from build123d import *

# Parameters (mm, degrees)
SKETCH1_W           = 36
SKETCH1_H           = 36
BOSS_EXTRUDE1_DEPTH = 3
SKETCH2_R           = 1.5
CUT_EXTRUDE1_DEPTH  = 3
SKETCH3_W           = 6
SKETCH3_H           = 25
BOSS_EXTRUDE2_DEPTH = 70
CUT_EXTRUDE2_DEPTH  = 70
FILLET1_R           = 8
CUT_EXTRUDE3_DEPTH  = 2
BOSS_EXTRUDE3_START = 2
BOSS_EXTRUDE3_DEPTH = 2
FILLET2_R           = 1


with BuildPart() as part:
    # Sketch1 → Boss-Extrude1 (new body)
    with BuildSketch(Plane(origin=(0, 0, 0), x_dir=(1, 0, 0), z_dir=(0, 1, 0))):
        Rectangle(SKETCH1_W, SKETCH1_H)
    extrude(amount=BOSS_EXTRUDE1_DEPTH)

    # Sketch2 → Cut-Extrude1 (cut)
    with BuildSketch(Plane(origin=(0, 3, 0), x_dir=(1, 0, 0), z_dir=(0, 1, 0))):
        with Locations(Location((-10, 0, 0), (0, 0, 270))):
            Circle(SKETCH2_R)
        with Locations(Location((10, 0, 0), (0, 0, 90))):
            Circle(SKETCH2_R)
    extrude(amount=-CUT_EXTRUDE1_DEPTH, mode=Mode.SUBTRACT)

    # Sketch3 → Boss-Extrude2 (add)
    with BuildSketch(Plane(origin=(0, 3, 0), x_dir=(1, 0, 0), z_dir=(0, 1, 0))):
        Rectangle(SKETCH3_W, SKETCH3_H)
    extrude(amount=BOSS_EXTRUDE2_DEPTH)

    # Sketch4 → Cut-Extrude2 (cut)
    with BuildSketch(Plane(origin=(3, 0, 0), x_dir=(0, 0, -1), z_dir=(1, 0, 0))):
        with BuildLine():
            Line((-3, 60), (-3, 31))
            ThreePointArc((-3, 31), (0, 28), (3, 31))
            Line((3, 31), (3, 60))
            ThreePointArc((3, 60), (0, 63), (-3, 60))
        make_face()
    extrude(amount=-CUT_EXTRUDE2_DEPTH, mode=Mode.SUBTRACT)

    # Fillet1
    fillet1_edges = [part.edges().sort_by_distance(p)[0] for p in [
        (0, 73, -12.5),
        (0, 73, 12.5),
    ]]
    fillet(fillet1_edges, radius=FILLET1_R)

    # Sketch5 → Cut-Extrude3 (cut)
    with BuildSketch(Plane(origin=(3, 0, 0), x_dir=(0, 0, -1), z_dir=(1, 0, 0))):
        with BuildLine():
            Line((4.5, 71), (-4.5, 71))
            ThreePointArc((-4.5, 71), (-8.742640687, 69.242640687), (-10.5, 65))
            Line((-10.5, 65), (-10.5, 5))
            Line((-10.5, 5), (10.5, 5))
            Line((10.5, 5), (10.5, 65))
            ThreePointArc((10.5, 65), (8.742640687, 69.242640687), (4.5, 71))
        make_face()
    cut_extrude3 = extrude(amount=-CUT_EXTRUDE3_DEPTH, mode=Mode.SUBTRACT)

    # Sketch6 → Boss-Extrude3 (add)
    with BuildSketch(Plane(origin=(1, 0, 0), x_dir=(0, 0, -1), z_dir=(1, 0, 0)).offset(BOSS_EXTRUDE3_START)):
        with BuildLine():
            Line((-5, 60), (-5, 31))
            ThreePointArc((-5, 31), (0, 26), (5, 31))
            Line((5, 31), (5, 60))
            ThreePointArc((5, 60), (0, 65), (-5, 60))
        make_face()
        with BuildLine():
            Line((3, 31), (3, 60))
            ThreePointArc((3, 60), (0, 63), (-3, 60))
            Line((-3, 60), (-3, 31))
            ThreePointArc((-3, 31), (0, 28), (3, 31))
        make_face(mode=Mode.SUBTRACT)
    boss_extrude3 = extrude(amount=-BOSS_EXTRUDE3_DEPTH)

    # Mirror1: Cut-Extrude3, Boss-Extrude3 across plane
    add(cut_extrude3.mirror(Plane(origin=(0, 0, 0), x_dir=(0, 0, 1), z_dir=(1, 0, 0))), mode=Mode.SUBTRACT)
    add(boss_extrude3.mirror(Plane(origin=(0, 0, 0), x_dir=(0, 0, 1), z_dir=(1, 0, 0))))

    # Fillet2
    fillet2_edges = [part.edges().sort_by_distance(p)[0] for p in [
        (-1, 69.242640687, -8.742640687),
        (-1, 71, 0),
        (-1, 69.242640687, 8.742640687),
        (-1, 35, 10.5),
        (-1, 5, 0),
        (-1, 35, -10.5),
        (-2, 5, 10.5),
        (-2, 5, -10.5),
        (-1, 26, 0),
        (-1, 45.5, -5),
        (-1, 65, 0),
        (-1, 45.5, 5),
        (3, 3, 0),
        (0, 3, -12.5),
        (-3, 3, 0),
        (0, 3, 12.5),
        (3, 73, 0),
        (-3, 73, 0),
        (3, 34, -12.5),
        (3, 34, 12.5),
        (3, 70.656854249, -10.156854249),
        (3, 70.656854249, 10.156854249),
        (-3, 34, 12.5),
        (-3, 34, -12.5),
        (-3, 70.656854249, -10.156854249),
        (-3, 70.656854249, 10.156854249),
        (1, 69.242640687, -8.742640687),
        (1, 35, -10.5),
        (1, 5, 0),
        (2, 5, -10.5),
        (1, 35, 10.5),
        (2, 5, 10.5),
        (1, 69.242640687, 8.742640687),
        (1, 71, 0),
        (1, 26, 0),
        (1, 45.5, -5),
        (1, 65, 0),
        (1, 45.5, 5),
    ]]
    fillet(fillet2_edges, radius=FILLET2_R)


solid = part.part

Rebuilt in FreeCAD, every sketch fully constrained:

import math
import FreeCAD as App
import Part
import Sketcher
from FreeCAD import Vector


def edges_at(feature, points):
    """Names of the edges that pass closest to the given points."""
    edges = feature.Shape.Edges
    near = lambda p: min(range(len(edges)), key=lambda i: edges[i].distToShape(Part.Vertex(*p))[0])
    return sorted({f"Edge{near(p) + 1}" for p in points})

doc = App.newDocument("Part")
params = doc.addObject("Spreadsheet::Sheet", "Params")
for row, (alias, value) in enumerate([
    ("sketch1_width", "36 mm"),
    ("pad1_length", "3 mm"),
    ("sketch2_diameter", "3 mm"),
    ("pocket1_length", "3 mm"),
    ("sketch3_width", "6 mm"),
    ("sketch3_height", "25 mm"),
    ("pad2_length", "70 mm"),
    ("sketch4_radius", "3 mm"),
    ("sketch4_width", "29 mm"),
    ("pocket2_length", "70 mm"),
    ("fillet_radius", "8 mm"),
    ("sketch5_radius", "6 mm"),
    ("sketch5_width", "60 mm"),
    ("sketch5_height", "9 mm"),
    ("pocket3_length", "2 mm"),
    ("sketch6_radius", "5 mm"),
    ("sketch6_radius2", "3 mm"),
    ("sketch6_width", "29 mm"),
    ("pad3_length", "2 mm"),
    ("fillet2_radius", "1 mm"),
], start=1):
    params.set(f"A{row}", alias)
    params.set(f"B{row}", "=" + value)
    params.setAlias(f"B{row}", alias)

body = doc.addObject("PartDesign::Body", "Body")

# Sketch on XZ plane
sketch1 = doc.addObject("Sketcher::SketchObject", "Sketch")
body.addObject(sketch1)
sketch1.AttachmentSupport = (doc.XZ_Plane, [""])
sketch1.MapMode = "FlatFace"
sketch1.addGeometry([
    Part.LineSegment(Vector(-18, -18, 0), Vector(-18, 18, 0)),
    Part.LineSegment(Vector(-18, 18, 0), Vector(18, 18, 0)),
    Part.LineSegment(Vector(18, 18, 0), Vector(18, -18, 0)),
    Part.LineSegment(Vector(18, -18, 0), Vector(-18, -18, 0)),
], False)
sketch1.addConstraint([
    Sketcher.Constraint("Coincident", 0, 2, 1, 1),
    Sketcher.Constraint("Coincident", 1, 2, 2, 1),
    Sketcher.Constraint("Coincident", 2, 2, 3, 1),
    Sketcher.Constraint("Coincident", 3, 2, 0, 1),
    Sketcher.Constraint("Vertical", 0),
    Sketcher.Constraint("Horizontal", 1),
    Sketcher.Constraint("Vertical", 2),
    Sketcher.Constraint("Horizontal", 3),
    Sketcher.Constraint("Symmetric", 0, 2, 2, 2, -1, 1),
    Sketcher.Constraint("Equal", 3, 0),
    Sketcher.Constraint("DistanceX", 1, 1, 1, 2, 36.0),
])
sketch1.setExpression("Constraints[10]", "Params.sketch1_width")
pad1 = doc.addObject("PartDesign::Pad", "Pad")
body.addObject(pad1)
pad1.Profile = sketch1
pad1.setExpression("Length", "Params.pad1_length")
pad1.Reversed = True

# Sketch on XZ plane
sketch2 = doc.addObject("Sketcher::SketchObject", "Sketch001")
body.addObject(sketch2)
sketch2.AttachmentSupport = (doc.XZ_Plane, [""])
sketch2.MapMode = "FlatFace"
sketch2.AttachmentOffset = App.Placement(Vector(0, 0, -3), App.Rotation())
sketch2.addGeometry([
    Part.Circle(Vector(-10, 0, 0), Vector(0, 0, 1), 1.5),
    Part.Circle(Vector(10, 0, 0), Vector(0, 0, 1), 1.5),
], False)
sketch2.addConstraint([
    Sketcher.Constraint("Equal", 0, 1),
    Sketcher.Constraint("Symmetric", 0, 3, 1, 3, -1, 1),
    Sketcher.Constraint("PointOnObject", 0, 3, -1),
    Sketcher.Constraint("Diameter", 0, 3.0),
    Sketcher.Constraint("DistanceX", 0, 3, -1, 1, 10.0),
])
sketch2.setExpression("Constraints[3]", "Params.sketch2_diameter")
pocket1 = doc.addObject("PartDesign::Pocket", "Pocket")
body.addObject(pocket1)
pocket1.Profile = sketch2
pocket1.setExpression("Length", "Params.pocket1_length")
pocket1.Reversed = True

# Sketch on XZ plane
sketch3 = doc.addObject("Sketcher::SketchObject", "Sketch002")
body.addObject(sketch3)
sketch3.AttachmentSupport = (doc.XZ_Plane, [""])
sketch3.MapMode = "FlatFace"
sketch3.AttachmentOffset = App.Placement(Vector(0, 0, -3), App.Rotation())
sketch3.addGeometry([
    Part.LineSegment(Vector(-3, -12, 0), Vector(-3, 12, 0)),
    Part.LineSegment(Vector(-3, 12, 0), Vector(3, 12, 0)),
    Part.LineSegment(Vector(3, 12, 0), Vector(3, -12, 0)),
    Part.LineSegment(Vector(3, -12, 0), Vector(-3, -12, 0)),
], False)
sketch3.addConstraint([
    Sketcher.Constraint("Coincident", 0, 2, 1, 1),
    Sketcher.Constraint("Coincident", 1, 2, 2, 1),
    Sketcher.Constraint("Coincident", 2, 2, 3, 1),
    Sketcher.Constraint("Coincident", 3, 2, 0, 1),
    Sketcher.Constraint("Vertical", 0),
    Sketcher.Constraint("Horizontal", 1),
    Sketcher.Constraint("Vertical", 2),
    Sketcher.Constraint("Horizontal", 3),
    Sketcher.Constraint("Symmetric", 0, 2, 2, 2, -1, 1),
    Sketcher.Constraint("DistanceX", 1, 1, 1, 2, 6.0),
    Sketcher.Constraint("DistanceY", 0, 1, 0, 2, 25.0),
])
sketch3.setExpression("Constraints[9]", "Params.sketch3_width")
sketch3.setExpression("Constraints[10]", "Params.sketch3_height")
pad2 = doc.addObject("PartDesign::Pad", "Pad001")
body.addObject(pad2)
pad2.Profile = sketch3
pad2.setExpression("Length", "Params.pad2_length")
pad2.Reversed = True

# Sketch on YZ plane
sketch4 = doc.addObject("Sketcher::SketchObject", "Sketch003")
body.addObject(sketch4)
sketch4.AttachmentSupport = (doc.YZ_Plane, [""])
sketch4.MapMode = "FlatFace"
sketch4.AttachmentOffset = App.Placement(Vector(0, 0, 3), App.Rotation())
sketch4.addGeometry([
    Part.LineSegment(Vector(60, 3, 0), Vector(31, 3, 0)),
    Part.ArcOfCircle(Part.Circle(Vector(31, 0, 0), Vector(0, 0, 1), 3), math.radians(90), math.radians(270)),
    Part.LineSegment(Vector(31, -3, 0), Vector(60, -3, 0)),
    Part.ArcOfCircle(Part.Circle(Vector(60, 0, 0), Vector(0, 0, 1), 3), math.radians(-90), math.radians(90)),
], False)
sketch4.addConstraint([
    Sketcher.Constraint("Tangent", 0, 2, 1, 1),
    Sketcher.Constraint("Tangent", 1, 2, 2, 1),
    Sketcher.Constraint("Tangent", 2, 2, 3, 1),
    Sketcher.Constraint("Tangent", 3, 2, 0, 1),
    Sketcher.Constraint("Horizontal", 0),
    Sketcher.Constraint("Horizontal", 2),
    Sketcher.Constraint("PointOnObject", 1, 3, -1),
    Sketcher.Constraint("Radius", 1, 3.0),
    Sketcher.Constraint("DistanceX", 0, 2, 0, 1, 29.0),
    Sketcher.Constraint("DistanceX", -1, 1, 1, 3, 31.0),
])
sketch4.setExpression("Constraints[7]", "Params.sketch4_radius")
sketch4.setExpression("Constraints[8]", "Params.sketch4_width")
pocket2 = doc.addObject("PartDesign::Pocket", "Pocket001")
body.addObject(pocket2)
pocket2.Profile = sketch4
pocket2.setExpression("Length", "Params.pocket2_length")
doc.recompute()

fillet = doc.addObject("PartDesign::Fillet", "Fillet")
body.addObject(fillet)
fillet.Base = (pocket2, edges_at(pocket2, [(0, 73, -12.5), (0, 73, 12.5)]))
fillet.setExpression("Radius", "Params.fillet_radius")

# Sketch on YZ plane
sketch5 = doc.addObject("Sketcher::SketchObject", "Sketch004")
body.addObject(sketch5)
sketch5.AttachmentSupport = (doc.YZ_Plane, [""])
sketch5.MapMode = "FlatFace"
sketch5.AttachmentOffset = App.Placement(Vector(0, 0, 3), App.Rotation())
sketch5.addGeometry([
    Part.LineSegment(Vector(71, -4, 0), Vector(71, 4, 0)),  # 0
    Part.ArcOfCircle(Part.Circle(Vector(65, 4, 0), Vector(0, 0, 1), 6), math.radians(0), math.radians(90)),  # 1
    Part.LineSegment(Vector(65, 10, 0), Vector(5, 10, 0)),  # 2
    Part.LineSegment(Vector(5, 10, 0), Vector(5, -10, 0)),  # 3
    Part.LineSegment(Vector(5, -10, 0), Vector(65, -10, 0)),  # 4
    Part.ArcOfCircle(Part.Circle(Vector(65, -4, 0), Vector(0, 0, 1), 6), math.radians(-90), math.radians(0)),  # 5
], False)
sketch5.addConstraint([
    Sketcher.Constraint("Tangent", 0, 2, 1, 1),
    Sketcher.Constraint("Tangent", 1, 2, 2, 1),
    Sketcher.Constraint("Coincident", 2, 2, 3, 1),
    Sketcher.Constraint("Coincident", 3, 2, 4, 1),
    Sketcher.Constraint("Tangent", 4, 2, 5, 1),
    Sketcher.Constraint("Tangent", 5, 2, 0, 1),
    Sketcher.Constraint("Vertical", 0),
    Sketcher.Constraint("Horizontal", 2),
    Sketcher.Constraint("Vertical", 3),
    Sketcher.Constraint("Horizontal", 4),
    Sketcher.Constraint("Equal", 1, 5),
    Sketcher.Constraint("Radius", 1, 6.0),
    Sketcher.Constraint("DistanceX", 2, 2, 2, 1, 60.0),
    Sketcher.Constraint("DistanceY", 0, 1, 0, 2, 9.0),
    Sketcher.Constraint("DistanceX", -1, 1, 1, 3, 65.0),
    Sketcher.Constraint("DistanceY", -1, 1, 1, 3, 4.5),
])
sketch5.setExpression("Constraints[11]", "Params.sketch5_radius")
sketch5.setExpression("Constraints[12]", "Params.sketch5_width")
sketch5.setExpression("Constraints[13]", "Params.sketch5_height")
pocket3 = doc.addObject("PartDesign::Pocket", "Pocket002")
body.addObject(pocket3)
pocket3.Profile = sketch5
pocket3.setExpression("Length", "Params.pocket3_length")

# Sketch on YZ plane
sketch6 = doc.addObject("Sketcher::SketchObject", "Sketch005")
body.addObject(sketch6)
sketch6.AttachmentSupport = (doc.YZ_Plane, [""])
sketch6.MapMode = "FlatFace"
sketch6.AttachmentOffset = App.Placement(Vector(0, 0, 3), App.Rotation())
sketch6.addGeometry([
    Part.LineSegment(Vector(60, 5, 0), Vector(31, 5, 0)),  # 0
    Part.ArcOfCircle(Part.Circle(Vector(31, 0, 0), Vector(0, 0, 1), 5), math.radians(90), math.radians(270)),  # 1
    Part.LineSegment(Vector(31, -5, 0), Vector(60, -5, 0)),  # 2
    Part.ArcOfCircle(Part.Circle(Vector(60, 0, 0), Vector(0, 0, 1), 5), math.radians(-90), math.radians(90)),  # 3
    Part.LineSegment(Vector(60, -3, 0), Vector(31, -3, 0)),  # 4
    Part.ArcOfCircle(Part.Circle(Vector(31, 0, 0), Vector(0, 0, 1), 3), math.radians(90), math.radians(270)),  # 5
    Part.LineSegment(Vector(31, 3, 0), Vector(60, 3, 0)),  # 6
    Part.ArcOfCircle(Part.Circle(Vector(60, 0, 0), Vector(0, 0, 1), 3), math.radians(-90), math.radians(90)),  # 7
], False)
sketch6.addConstraint([
    Sketcher.Constraint("Tangent", 0, 2, 1, 1),
    Sketcher.Constraint("Tangent", 1, 2, 2, 1),
    Sketcher.Constraint("Tangent", 2, 2, 3, 1),
    Sketcher.Constraint("Tangent", 3, 2, 0, 1),
    Sketcher.Constraint("Tangent", 4, 2, 5, 2),
    Sketcher.Constraint("Tangent", 5, 1, 6, 1),
    Sketcher.Constraint("Tangent", 6, 2, 7, 2),
    Sketcher.Constraint("Tangent", 7, 1, 4, 1),
    Sketcher.Constraint("Horizontal", 0),
    Sketcher.Constraint("Horizontal", 2),
    Sketcher.Constraint("Horizontal", 4),
    Sketcher.Constraint("Horizontal", 6),
    Sketcher.Constraint("Coincident", 5, 3, 1, 3),
    Sketcher.Constraint("PointOnObject", 1, 3, -1),
    Sketcher.Constraint("Vertical", 7, 3, 2, 2),
    Sketcher.Constraint("Radius", 1, 5.0),
    Sketcher.Constraint("Radius", 5, 3.0),
    Sketcher.Constraint("DistanceX", 0, 2, 0, 1, 29.0),
    Sketcher.Constraint("DistanceX", -1, 1, 1, 3, 31.0),
])
sketch6.setExpression("Constraints[15]", "Params.sketch6_radius")
sketch6.setExpression("Constraints[16]", "Params.sketch6_radius2")
sketch6.setExpression("Constraints[17]", "Params.sketch6_width")
pad3 = doc.addObject("PartDesign::Pad", "Pad002")
body.addObject(pad3)
pad3.Profile = sketch6
pad3.setExpression("Length", "Params.pad3_length")
pad3.Reversed = True
doc.recompute()

mirrored = doc.addObject("PartDesign::Mirrored", "Mirrored")
body.addObject(mirrored)
mirrored.Originals = [pocket3, pad3]
mirrored.MirrorPlane = (doc.YZ_Plane, [""])
body.Tip = mirrored
doc.recompute()

fillet2 = doc.addObject("PartDesign::Fillet", "Fillet001")
body.addObject(fillet2)
fillet2.Base = (mirrored, edges_at(mirrored, [
    (-1, 69.243, -8.743),
    (-1, 71, 0),
    (-1, 69.243, 8.743),
    (-1, 35, 10.5),
    (-1, 5, 0),
    (-1, 35, -10.5),
    (-2, 5, 10.5),
    (-2, 5, -10.5),
    (-1, 26, 0),
    (-1, 45.5, -5),
    (-1, 65, 0),
    (-1, 45.5, 5),
    (3, 3, 0),
    (0, 3, -12.5),
    (-3, 3, 0),
    (0, 3, 12.5),
    (3, 73, 0),
    (-3, 73, 0),
    (3, 34, -12.5),
    (3, 34, 12.5),
    (3, 70.657, -10.157),
    (3, 70.657, 10.157),
    (-3, 34, 12.5),
    (-3, 34, -12.5),
    (-3, 70.657, -10.157),
    (-3, 70.657, 10.157),
    (1, 69.243, -8.743),
    (1, 35, -10.5),
    (1, 5, 0),
    (2, 5, -10.5),
    (1, 35, 10.5),
    (2, 5, 10.5),
    (1, 69.243, 8.743),
    (1, 71, 0),
    (1, 26, 0),
    (1, 45.5, -5),
    (1, 65, 0),
    (1, 45.5, 5),
]))
fillet2.setExpression("Radius", "Params.fillet2_radius")

doc.recompute()
